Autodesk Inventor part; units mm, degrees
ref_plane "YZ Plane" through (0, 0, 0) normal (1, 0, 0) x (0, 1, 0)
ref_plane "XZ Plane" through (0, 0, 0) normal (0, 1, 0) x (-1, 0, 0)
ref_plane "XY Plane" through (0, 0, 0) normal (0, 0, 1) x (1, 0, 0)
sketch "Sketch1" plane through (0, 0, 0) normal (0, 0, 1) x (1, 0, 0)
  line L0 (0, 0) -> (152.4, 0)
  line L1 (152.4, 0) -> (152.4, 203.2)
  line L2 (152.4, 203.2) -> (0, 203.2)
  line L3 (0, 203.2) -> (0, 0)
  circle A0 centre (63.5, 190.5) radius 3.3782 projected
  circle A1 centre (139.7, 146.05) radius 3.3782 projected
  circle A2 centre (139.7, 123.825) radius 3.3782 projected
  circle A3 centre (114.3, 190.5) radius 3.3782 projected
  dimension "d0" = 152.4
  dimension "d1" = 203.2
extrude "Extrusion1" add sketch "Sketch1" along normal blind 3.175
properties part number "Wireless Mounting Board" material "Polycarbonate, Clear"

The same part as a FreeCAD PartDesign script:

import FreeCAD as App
import Part
import Sketcher
Q = App.Units.Quantity

doc = App.newDocument("Part")
body = doc.addObject("PartDesign::Body", "Body")

sketch1 = doc.addObject("Sketcher::SketchObject", "Sketch")
body.addObject(sketch1)
sketch1.AttachmentSupport = (doc.XY_Plane, [""])
sketch1.MapMode = "FlatFace"
sketch1.addGeometry(Part.LineSegment(App.Vector(0, 203.2, 0), App.Vector(0, 0, 0)), False)
sketch1.addGeometry(Part.LineSegment(App.Vector(0, 0, 0), App.Vector(152.4, 0, 0)), False)
sketch1.addGeometry(Part.LineSegment(App.Vector(152.4, 0, 0), App.Vector(152.4, 203.2, 0)), False)
sketch1.addGeometry(Part.LineSegment(App.Vector(152.4, 203.2, 0), App.Vector(0, 203.2, 0)), False)
sketch1.addGeometry(Part.Circle(App.Vector(63.5, 190.5, 0), App.Vector(0, 0, 1), 3.4), False)
sketch1.addGeometry(Part.Circle(App.Vector(139.7, 123.8, 0), App.Vector(0, 0, 1), 3.4), False)
sketch1.addGeometry(Part.Circle(App.Vector(139.7, 146.1, 0), App.Vector(0, 0, 1), 3.4), False)
sketch1.addGeometry(Part.Circle(App.Vector(114.3, 190.5, 0), App.Vector(0, 0, 1), 3.4), False)
sketch1.addConstraint(Sketcher.Constraint("Coincident", 0, 2, 1, 1))
sketch1.addConstraint(Sketcher.Constraint("Coincident", 1, 2, 2, 1))
sketch1.addConstraint(Sketcher.Constraint("Coincident", 2, 2, 3, 1))
sketch1.addConstraint(Sketcher.Constraint("Coincident", 3, 2, 0, 1))
sketch1.addConstraint(Sketcher.Constraint("Vertical", 0))
sketch1.addConstraint(Sketcher.Constraint("Horizontal", 1))
sketch1.addConstraint(Sketcher.Constraint("Vertical", 2))
sketch1.addConstraint(Sketcher.Constraint("Horizontal", 3))
sketch1.addConstraint(Sketcher.Constraint("Coincident", 0, 2, -1, 1))
sketch1.addConstraint(Sketcher.Constraint("Equal", 4, 5))
sketch1.addConstraint(Sketcher.Constraint("Equal", 5, 6))
sketch1.addConstraint(Sketcher.Constraint("Equal", 6, 7))
sketch1.addConstraint(Sketcher.Constraint("Horizontal", 4, 3, 7, 3))
sketch1.addConstraint(Sketcher.Constraint("Vertical", 5, 3, 6, 3))
sketch1.addConstraint(Sketcher.Constraint("DistanceX", 1, 1, 1, 2, Q("6 in")))
sketch1.addConstraint(Sketcher.Constraint("DistanceY", 0, 2, 0, 1, Q("8 in")))
sketch1.addConstraint(Sketcher.Constraint("Diameter", 4, Q("0.266 in")))
sketch1.addConstraint(Sketcher.Constraint("DistanceX", 4, 3, 5, 3, Q("3 in")))
sketch1.addConstraint(Sketcher.Constraint("DistanceX", 4, 3, 7, 3, Q("2 in")))
sketch1.addConstraint(Sketcher.Constraint("DistanceX", -1, 1, 4, 3, Q("2.5 in")))
sketch1.addConstraint(Sketcher.Constraint("DistanceY", -1, 1, 4, 3, Q("7.5 in")))
sketch1.addConstraint(Sketcher.Constraint("DistanceY", -1, 1, 6, 3, Q("5.75 in")))
sketch1.addConstraint(Sketcher.Constraint("DistanceY", -1, 1, 5, 3, Q("4.875 in")))
pad1 = doc.addObject("PartDesign::Pad", "Pad")
body.addObject(pad1)
pad1.Profile = sketch1
pad1.Length = Q("0.125 in")

doc.recompute()
